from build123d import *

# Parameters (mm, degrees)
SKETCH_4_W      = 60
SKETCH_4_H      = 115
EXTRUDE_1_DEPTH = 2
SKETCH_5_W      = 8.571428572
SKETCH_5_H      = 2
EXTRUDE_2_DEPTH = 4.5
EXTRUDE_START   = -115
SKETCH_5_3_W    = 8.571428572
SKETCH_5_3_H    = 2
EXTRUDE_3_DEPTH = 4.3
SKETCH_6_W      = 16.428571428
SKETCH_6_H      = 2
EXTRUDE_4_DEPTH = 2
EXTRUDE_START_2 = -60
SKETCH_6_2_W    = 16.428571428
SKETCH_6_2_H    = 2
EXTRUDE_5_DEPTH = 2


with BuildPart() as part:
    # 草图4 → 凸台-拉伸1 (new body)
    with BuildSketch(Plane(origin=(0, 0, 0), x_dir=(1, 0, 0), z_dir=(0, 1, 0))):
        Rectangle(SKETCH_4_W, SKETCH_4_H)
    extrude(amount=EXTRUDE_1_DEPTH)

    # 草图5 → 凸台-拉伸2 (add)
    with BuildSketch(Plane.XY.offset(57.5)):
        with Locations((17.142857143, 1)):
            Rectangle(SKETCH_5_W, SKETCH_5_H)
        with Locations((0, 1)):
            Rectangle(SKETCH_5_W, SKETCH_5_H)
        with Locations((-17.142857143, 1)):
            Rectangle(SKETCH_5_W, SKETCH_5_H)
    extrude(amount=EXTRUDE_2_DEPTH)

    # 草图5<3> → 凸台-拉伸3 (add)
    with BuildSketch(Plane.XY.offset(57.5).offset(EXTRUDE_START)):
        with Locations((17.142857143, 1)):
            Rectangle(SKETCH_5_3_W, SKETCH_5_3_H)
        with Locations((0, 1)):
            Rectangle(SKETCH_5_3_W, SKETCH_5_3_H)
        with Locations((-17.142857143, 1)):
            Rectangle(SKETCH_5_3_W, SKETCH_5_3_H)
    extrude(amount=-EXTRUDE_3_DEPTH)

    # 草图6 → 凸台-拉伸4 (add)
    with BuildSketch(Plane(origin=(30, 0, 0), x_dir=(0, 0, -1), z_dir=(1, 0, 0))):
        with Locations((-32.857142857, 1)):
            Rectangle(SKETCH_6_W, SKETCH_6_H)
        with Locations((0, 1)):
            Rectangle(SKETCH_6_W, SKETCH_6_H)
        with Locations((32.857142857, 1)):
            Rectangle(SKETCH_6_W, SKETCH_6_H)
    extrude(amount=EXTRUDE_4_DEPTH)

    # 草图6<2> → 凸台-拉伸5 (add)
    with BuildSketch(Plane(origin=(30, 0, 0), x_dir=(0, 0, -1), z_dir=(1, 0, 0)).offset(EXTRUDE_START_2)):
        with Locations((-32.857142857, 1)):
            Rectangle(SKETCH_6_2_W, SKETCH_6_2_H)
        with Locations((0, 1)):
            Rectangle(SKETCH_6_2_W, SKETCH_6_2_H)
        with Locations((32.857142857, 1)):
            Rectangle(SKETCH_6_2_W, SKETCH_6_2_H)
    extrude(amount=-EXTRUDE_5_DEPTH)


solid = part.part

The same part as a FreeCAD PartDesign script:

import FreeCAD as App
import Part
import Sketcher

V = App.Vector


def add_polygon(sketch, points):
    """Adds a closed chain of lines whose ends are joined by coincident constraints."""
    first, n = sketch.GeometryCount, len(points)
    for a, b in zip(points, points[1:] + points[:1]):
        sketch.addGeometry(Part.LineSegment(App.Vector(*a, 0), App.Vector(*b, 0)), False)
    for i in range(n):
        sketch.addConstraint(Sketcher.Constraint("Coincident", first + i, 2, first + (i + 1) % n, 1))

doc = App.newDocument("Part")
body = doc.addObject("PartDesign::Body", "Body")

# Sketch on XZ plane
sketch1 = body.newObject("Sketcher::SketchObject", "Sketch")
sketch1.AttachmentSupport = (doc.getObject("XZ_Plane"), [""])
sketch1.MapMode = "FlatFace"
add_polygon(sketch1, [(-30, -58), (-30, 58), (30, 58), (30, -58)])  # lines 0-3
sketch1.addConstraint(Sketcher.Constraint("Vertical", 0))
sketch1.addConstraint(Sketcher.Constraint("Horizontal", 1))
sketch1.addConstraint(Sketcher.Constraint("Vertical", 2))
sketch1.addConstraint(Sketcher.Constraint("Horizontal", 3))
sketch1.addConstraint(Sketcher.Constraint("Symmetric", 0, 2, 2, 2, -1, 1))
sketch1.addConstraint(Sketcher.Constraint("DistanceX", 1, 1, 1, 2, 60.0))
sketch1.addConstraint(Sketcher.Constraint("DistanceY", 0, 1, 0, 2, 115.0))
pad1 = body.newObject("PartDesign::Pad", "Pad")
pad1.Profile = sketch1
pad1.Length = 2
pad1.Reversed = True

# Sketch on XY plane
sketch2 = body.newObject("Sketcher::SketchObject", "Sketch001")
sketch2.AttachmentSupport = (doc.getObject("XY_Plane"), [""])
sketch2.MapMode = "FlatFace"
sketch2.AttachmentOffset = App.Placement(V(0, 0, 57.5), App.Rotation())
add_polygon(sketch2, [(12.9, 2), (12.9, 0), (21.4, 0), (21.4, 2)])  # lines 0-3
add_polygon(sketch2, [(-4.3, 2), (-4.3, 0), (4.3, 0), (4.3, 2)])  # lines 4-7
add_polygon(sketch2, [(-21.4, 2), (-21.4, 0), (-12.9, 0), (-12.9, 2)])  # lines 8-11
sketch2.addConstraint(Sketcher.Constraint("Vertical", 0))
sketch2.addConstraint(Sketcher.Constraint("Horizontal", 1))
sketch2.addConstraint(Sketcher.Constraint("Vertical", 2))
sketch2.addConstraint(Sketcher.Constraint("Horizontal", 3))
sketch2.addConstraint(Sketcher.Constraint("Vertical", 4))
sketch2.addConstraint(Sketcher.Constraint("Horizontal", 5))
sketch2.addConstraint(Sketcher.Constraint("Vertical", 6))
sketch2.addConstraint(Sketcher.Constraint("Horizontal", 7))
sketch2.addConstraint(Sketcher.Constraint("Vertical", 8))
sketch2.addConstraint(Sketcher.Constraint("Horizontal", 9))
sketch2.addConstraint(Sketcher.Constraint("Vertical", 10))
sketch2.addConstraint(Sketcher.Constraint("Horizontal", 11))
sketch2.addConstraint(Sketcher.Constraint("Symmetric", 4, 2, 5, 2, -1, 1))
sketch2.addConstraint(Sketcher.Constraint("Symmetric", 1, 2, 8, 2, -1, 1))
sketch2.addConstraint(Sketcher.Constraint("Symmetric", 0, 2, 9, 2, -2))
sketch2.addConstraint(Sketcher.Constraint("Horizontal", 3, 2, 6, 2))
sketch2.addConstraint(Sketcher.Constraint("Horizontal", 7, 2, 10, 2))
sketch2.addConstraint(Sketcher.Constraint("Equal", 3, 5))
sketch2.addConstraint(Sketcher.Constraint("DistanceY", 0, 2, 0, 1, 2.0))
sketch2.addConstraint(Sketcher.Constraint("DistanceX", 1, 1, 1, 2, 8.571429))
sketch2.addConstraint(Sketcher.Constraint("DistanceX", -1, 1, 1, 2, 21.428571))
pad2 = body.newObject("PartDesign::Pad", "Pad001")
pad2.Profile = sketch2
pad2.Length = 4.5

# Sketch on XY plane
sketch3 = body.newObject("Sketcher::SketchObject", "Sketch002")
sketch3.AttachmentSupport = (doc.getObject("XY_Plane"), [""])
sketch3.MapMode = "FlatFace"
sketch3.AttachmentOffset = App.Placement(V(0, 0, -57.5), App.Rotation())
add_polygon(sketch3, [(12.9, 2), (12.9, 0), (21.4, 0), (21.4, 2)])  # lines 0-3
add_polygon(sketch3, [(-4.3, 2), (-4.3, 0), (4.3, 0), (4.3, 2)])  # lines 4-7
add_polygon(sketch3, [(-21.4, 2), (-21.4, 0), (-12.9, 0), (-12.9, 2)])  # lines 8-11
sketch3.addConstraint(Sketcher.Constraint("Vertical", 0))
sketch3.addConstraint(Sketcher.Constraint("Horizontal", 1))
sketch3.addConstraint(Sketcher.Constraint("Vertical", 2))
sketch3.addConstraint(Sketcher.Constraint("Horizontal", 3))
sketch3.addConstraint(Sketcher.Constraint("Vertical", 4))
sketch3.addConstraint(Sketcher.Constraint("Horizontal", 5))
sketch3.addConstraint(Sketcher.Constraint("Vertical", 6))
sketch3.addConstraint(Sketcher.Constraint("Horizontal", 7))
sketch3.addConstraint(Sketcher.Constraint("Vertical", 8))
sketch3.addConstraint(Sketcher.Constraint("Horizontal", 9))
sketch3.addConstraint(Sketcher.Constraint("Vertical", 10))
sketch3.addConstraint(Sketcher.Constraint("Horizontal", 11))
sketch3.addConstraint(Sketcher.Constraint("Symmetric", 4, 2, 5, 2, -1, 1))
sketch3.addConstraint(Sketcher.Constraint("Symmetric", 1, 2, 8, 2, -1, 1))
sketch3.addConstraint(Sketcher.Constraint("Symmetric", 0, 2, 9, 2, -2))
sketch3.addConstraint(Sketcher.Constraint("Horizontal", 3, 2, 6, 2))
sketch3.addConstraint(Sketcher.Constraint("Horizontal", 7, 2, 10, 2))
sketch3.addConstraint(Sketcher.Constraint("Equal", 3, 5))
sketch3.addConstraint(Sketcher.Constraint("DistanceY", 0, 2, 0, 1, 2.0))
sketch3.addConstraint(Sketcher.Constraint("DistanceX", 1, 1, 1, 2, 8.571429))
sketch3.addConstraint(Sketcher.Constraint("DistanceX", -1, 1, 1, 2, 21.428571))
pad3 = body.newObject("PartDesign::Pad", "Pad002")
pad3.Profile = sketch3
pad3.Length = 4.3
pad3.Reversed = True

# Sketch on YZ plane
sketch4 = body.newObject("Sketcher::SketchObject", "Sketch003")
sketch4.AttachmentSupport = (doc.getObject("YZ_Plane"), [""])
sketch4.MapMode = "FlatFace"
sketch4.AttachmentOffset = App.Placement(V(0, 0, 30), App.Rotation())
add_polygon(sketch4, [(2, 41.1), (0, 41.1), (0, 24.6), (2, 24.6)])  # lines 0-3
add_polygon(sketch4, [(2, 8.2), (0, 8.2), (0, -8.2), (2, -8.2)])  # lines 4-7
add_polygon(sketch4, [(2, -24.6), (0, -24.6), (0, -41.1), (2, -41.1)])  # lines 8-11
sketch4.addConstraint(Sketcher.Constraint("Horizontal", 0))
sketch4.addConstraint(Sketcher.Constraint("Vertical", 1))
sketch4.addConstraint(Sketcher.Constraint("Horizontal", 2))
sketch4.addConstraint(Sketcher.Constraint("Vertical", 3))
sketch4.addConstraint(Sketcher.Constraint("Horizontal", 4))
sketch4.addConstraint(Sketcher.Constraint("Vertical", 5))
sketch4.addConstraint(Sketcher.Constraint("Horizontal", 6))
sketch4.addConstraint(Sketcher.Constraint("Vertical", 7))
sketch4.addConstraint(Sketcher.Constraint("Horizontal", 8))
sketch4.addConstraint(Sketcher.Constraint("Vertical", 9))
sketch4.addConstraint(Sketcher.Constraint("Horizontal", 10))
sketch4.addConstraint(Sketcher.Constraint("Vertical", 11))
sketch4.addConstraint(Sketcher.Constraint("Symmetric", 4, 2, 5, 2, -1, 1))
sketch4.addConstraint(Sketcher.Constraint("Symmetric", 1, 2, 8, 2, -1, 1))
sketch4.addConstraint(Sketcher.Constraint("Symmetric", 0, 2, 9, 2, -1))
sketch4.addConstraint(Sketcher.Constraint("Vertical", 3, 2, 6, 2))
sketch4.addConstraint(Sketcher.Constraint("Vertical", 7, 2, 10, 2))
sketch4.addConstraint(Sketcher.Constraint("Equal", 3, 5))
sketch4.addConstraint(Sketcher.Constraint("DistanceX", 0, 2, 0, 1, 2.0))
sketch4.addConstraint(Sketcher.Constraint("DistanceY", 1, 2, 1, 1, 16.428571))
sketch4.addConstraint(Sketcher.Constraint("DistanceY", -1, 1, 0, 2, 41.071429))
pad4 = body.newObject("PartDesign::Pad", "Pad003")
pad4.Profile = sketch4
pad4.Length = 2

# Sketch on YZ plane
sketch5 = body.newObject("Sketcher::SketchObject", "Sketch004")
sketch5.AttachmentSupport = (doc.getObject("YZ_Plane"), [""])
sketch5.MapMode = "FlatFace"
sketch5.AttachmentOffset = App.Placement(V(0, 0, -30), App.Rotation())
add_polygon(sketch5, [(2, 41.1), (0, 41.1), (0, 24.6), (2, 24.6)])  # lines 0-3
add_polygon(sketch5, [(2, 8.2), (0, 8.2), (0, -8.2), (2, -8.2)])  # lines 4-7
add_polygon(sketch5, [(2, -24.6), (0, -24.6), (0, -41.1), (2, -41.1)])  # lines 8-11
sketch5.addConstraint(Sketcher.Constraint("Horizontal", 0))
sketch5.addConstraint(Sketcher.Constraint("Vertical", 1))
sketch5.addConstraint(Sketcher.Constraint("Horizontal", 2))
sketch5.addConstraint(Sketcher.Constraint("Vertical", 3))
sketch5.addConstraint(Sketcher.Constraint("Horizontal", 4))
sketch5.addConstraint(Sketcher.Constraint("Vertical", 5))
sketch5.addConstraint(Sketcher.Constraint("Horizontal", 6))
sketch5.addConstraint(Sketcher.Constraint("Vertical", 7))
sketch5.addConstraint(Sketcher.Constraint("Horizontal", 8))
sketch5.addConstraint(Sketcher.Constraint("Vertical", 9))
sketch5.addConstraint(Sketcher.Constraint("Horizontal", 10))
sketch5.addConstraint(Sketcher.Constraint("Vertical", 11))
sketch5.addConstraint(Sketcher.Constraint("Symmetric", 4, 2, 5, 2, -1, 1))
sketch5.addConstraint(Sketcher.Constraint("Symmetric", 1, 2, 8, 2, -1, 1))
sketch5.addConstraint(Sketcher.Constraint("Symmetric", 0, 2, 9, 2, -1))
sketch5.addConstraint(Sketcher.Constraint("Vertical", 3, 2, 6, 2))
sketch5.addConstraint(Sketcher.Constraint("Vertical", 7, 2, 10, 2))
sketch5.addConstraint(Sketcher.Constraint("Equal", 3, 5))
sketch5.addConstraint(Sketcher.Constraint("DistanceX", 0, 2, 0, 1, 2.0))
sketch5.addConstraint(Sketcher.Constraint("DistanceY", 1, 2, 1, 1, 16.428571))
sketch5.addConstraint(Sketcher.Constraint("DistanceY", -1, 1, 0, 2, 41.071429))
pad5 = body.newObject("PartDesign::Pad", "Pad004")
pad5.Profile = sketch5
pad5.Length = 2
pad5.Reversed = True

doc.recompute()
